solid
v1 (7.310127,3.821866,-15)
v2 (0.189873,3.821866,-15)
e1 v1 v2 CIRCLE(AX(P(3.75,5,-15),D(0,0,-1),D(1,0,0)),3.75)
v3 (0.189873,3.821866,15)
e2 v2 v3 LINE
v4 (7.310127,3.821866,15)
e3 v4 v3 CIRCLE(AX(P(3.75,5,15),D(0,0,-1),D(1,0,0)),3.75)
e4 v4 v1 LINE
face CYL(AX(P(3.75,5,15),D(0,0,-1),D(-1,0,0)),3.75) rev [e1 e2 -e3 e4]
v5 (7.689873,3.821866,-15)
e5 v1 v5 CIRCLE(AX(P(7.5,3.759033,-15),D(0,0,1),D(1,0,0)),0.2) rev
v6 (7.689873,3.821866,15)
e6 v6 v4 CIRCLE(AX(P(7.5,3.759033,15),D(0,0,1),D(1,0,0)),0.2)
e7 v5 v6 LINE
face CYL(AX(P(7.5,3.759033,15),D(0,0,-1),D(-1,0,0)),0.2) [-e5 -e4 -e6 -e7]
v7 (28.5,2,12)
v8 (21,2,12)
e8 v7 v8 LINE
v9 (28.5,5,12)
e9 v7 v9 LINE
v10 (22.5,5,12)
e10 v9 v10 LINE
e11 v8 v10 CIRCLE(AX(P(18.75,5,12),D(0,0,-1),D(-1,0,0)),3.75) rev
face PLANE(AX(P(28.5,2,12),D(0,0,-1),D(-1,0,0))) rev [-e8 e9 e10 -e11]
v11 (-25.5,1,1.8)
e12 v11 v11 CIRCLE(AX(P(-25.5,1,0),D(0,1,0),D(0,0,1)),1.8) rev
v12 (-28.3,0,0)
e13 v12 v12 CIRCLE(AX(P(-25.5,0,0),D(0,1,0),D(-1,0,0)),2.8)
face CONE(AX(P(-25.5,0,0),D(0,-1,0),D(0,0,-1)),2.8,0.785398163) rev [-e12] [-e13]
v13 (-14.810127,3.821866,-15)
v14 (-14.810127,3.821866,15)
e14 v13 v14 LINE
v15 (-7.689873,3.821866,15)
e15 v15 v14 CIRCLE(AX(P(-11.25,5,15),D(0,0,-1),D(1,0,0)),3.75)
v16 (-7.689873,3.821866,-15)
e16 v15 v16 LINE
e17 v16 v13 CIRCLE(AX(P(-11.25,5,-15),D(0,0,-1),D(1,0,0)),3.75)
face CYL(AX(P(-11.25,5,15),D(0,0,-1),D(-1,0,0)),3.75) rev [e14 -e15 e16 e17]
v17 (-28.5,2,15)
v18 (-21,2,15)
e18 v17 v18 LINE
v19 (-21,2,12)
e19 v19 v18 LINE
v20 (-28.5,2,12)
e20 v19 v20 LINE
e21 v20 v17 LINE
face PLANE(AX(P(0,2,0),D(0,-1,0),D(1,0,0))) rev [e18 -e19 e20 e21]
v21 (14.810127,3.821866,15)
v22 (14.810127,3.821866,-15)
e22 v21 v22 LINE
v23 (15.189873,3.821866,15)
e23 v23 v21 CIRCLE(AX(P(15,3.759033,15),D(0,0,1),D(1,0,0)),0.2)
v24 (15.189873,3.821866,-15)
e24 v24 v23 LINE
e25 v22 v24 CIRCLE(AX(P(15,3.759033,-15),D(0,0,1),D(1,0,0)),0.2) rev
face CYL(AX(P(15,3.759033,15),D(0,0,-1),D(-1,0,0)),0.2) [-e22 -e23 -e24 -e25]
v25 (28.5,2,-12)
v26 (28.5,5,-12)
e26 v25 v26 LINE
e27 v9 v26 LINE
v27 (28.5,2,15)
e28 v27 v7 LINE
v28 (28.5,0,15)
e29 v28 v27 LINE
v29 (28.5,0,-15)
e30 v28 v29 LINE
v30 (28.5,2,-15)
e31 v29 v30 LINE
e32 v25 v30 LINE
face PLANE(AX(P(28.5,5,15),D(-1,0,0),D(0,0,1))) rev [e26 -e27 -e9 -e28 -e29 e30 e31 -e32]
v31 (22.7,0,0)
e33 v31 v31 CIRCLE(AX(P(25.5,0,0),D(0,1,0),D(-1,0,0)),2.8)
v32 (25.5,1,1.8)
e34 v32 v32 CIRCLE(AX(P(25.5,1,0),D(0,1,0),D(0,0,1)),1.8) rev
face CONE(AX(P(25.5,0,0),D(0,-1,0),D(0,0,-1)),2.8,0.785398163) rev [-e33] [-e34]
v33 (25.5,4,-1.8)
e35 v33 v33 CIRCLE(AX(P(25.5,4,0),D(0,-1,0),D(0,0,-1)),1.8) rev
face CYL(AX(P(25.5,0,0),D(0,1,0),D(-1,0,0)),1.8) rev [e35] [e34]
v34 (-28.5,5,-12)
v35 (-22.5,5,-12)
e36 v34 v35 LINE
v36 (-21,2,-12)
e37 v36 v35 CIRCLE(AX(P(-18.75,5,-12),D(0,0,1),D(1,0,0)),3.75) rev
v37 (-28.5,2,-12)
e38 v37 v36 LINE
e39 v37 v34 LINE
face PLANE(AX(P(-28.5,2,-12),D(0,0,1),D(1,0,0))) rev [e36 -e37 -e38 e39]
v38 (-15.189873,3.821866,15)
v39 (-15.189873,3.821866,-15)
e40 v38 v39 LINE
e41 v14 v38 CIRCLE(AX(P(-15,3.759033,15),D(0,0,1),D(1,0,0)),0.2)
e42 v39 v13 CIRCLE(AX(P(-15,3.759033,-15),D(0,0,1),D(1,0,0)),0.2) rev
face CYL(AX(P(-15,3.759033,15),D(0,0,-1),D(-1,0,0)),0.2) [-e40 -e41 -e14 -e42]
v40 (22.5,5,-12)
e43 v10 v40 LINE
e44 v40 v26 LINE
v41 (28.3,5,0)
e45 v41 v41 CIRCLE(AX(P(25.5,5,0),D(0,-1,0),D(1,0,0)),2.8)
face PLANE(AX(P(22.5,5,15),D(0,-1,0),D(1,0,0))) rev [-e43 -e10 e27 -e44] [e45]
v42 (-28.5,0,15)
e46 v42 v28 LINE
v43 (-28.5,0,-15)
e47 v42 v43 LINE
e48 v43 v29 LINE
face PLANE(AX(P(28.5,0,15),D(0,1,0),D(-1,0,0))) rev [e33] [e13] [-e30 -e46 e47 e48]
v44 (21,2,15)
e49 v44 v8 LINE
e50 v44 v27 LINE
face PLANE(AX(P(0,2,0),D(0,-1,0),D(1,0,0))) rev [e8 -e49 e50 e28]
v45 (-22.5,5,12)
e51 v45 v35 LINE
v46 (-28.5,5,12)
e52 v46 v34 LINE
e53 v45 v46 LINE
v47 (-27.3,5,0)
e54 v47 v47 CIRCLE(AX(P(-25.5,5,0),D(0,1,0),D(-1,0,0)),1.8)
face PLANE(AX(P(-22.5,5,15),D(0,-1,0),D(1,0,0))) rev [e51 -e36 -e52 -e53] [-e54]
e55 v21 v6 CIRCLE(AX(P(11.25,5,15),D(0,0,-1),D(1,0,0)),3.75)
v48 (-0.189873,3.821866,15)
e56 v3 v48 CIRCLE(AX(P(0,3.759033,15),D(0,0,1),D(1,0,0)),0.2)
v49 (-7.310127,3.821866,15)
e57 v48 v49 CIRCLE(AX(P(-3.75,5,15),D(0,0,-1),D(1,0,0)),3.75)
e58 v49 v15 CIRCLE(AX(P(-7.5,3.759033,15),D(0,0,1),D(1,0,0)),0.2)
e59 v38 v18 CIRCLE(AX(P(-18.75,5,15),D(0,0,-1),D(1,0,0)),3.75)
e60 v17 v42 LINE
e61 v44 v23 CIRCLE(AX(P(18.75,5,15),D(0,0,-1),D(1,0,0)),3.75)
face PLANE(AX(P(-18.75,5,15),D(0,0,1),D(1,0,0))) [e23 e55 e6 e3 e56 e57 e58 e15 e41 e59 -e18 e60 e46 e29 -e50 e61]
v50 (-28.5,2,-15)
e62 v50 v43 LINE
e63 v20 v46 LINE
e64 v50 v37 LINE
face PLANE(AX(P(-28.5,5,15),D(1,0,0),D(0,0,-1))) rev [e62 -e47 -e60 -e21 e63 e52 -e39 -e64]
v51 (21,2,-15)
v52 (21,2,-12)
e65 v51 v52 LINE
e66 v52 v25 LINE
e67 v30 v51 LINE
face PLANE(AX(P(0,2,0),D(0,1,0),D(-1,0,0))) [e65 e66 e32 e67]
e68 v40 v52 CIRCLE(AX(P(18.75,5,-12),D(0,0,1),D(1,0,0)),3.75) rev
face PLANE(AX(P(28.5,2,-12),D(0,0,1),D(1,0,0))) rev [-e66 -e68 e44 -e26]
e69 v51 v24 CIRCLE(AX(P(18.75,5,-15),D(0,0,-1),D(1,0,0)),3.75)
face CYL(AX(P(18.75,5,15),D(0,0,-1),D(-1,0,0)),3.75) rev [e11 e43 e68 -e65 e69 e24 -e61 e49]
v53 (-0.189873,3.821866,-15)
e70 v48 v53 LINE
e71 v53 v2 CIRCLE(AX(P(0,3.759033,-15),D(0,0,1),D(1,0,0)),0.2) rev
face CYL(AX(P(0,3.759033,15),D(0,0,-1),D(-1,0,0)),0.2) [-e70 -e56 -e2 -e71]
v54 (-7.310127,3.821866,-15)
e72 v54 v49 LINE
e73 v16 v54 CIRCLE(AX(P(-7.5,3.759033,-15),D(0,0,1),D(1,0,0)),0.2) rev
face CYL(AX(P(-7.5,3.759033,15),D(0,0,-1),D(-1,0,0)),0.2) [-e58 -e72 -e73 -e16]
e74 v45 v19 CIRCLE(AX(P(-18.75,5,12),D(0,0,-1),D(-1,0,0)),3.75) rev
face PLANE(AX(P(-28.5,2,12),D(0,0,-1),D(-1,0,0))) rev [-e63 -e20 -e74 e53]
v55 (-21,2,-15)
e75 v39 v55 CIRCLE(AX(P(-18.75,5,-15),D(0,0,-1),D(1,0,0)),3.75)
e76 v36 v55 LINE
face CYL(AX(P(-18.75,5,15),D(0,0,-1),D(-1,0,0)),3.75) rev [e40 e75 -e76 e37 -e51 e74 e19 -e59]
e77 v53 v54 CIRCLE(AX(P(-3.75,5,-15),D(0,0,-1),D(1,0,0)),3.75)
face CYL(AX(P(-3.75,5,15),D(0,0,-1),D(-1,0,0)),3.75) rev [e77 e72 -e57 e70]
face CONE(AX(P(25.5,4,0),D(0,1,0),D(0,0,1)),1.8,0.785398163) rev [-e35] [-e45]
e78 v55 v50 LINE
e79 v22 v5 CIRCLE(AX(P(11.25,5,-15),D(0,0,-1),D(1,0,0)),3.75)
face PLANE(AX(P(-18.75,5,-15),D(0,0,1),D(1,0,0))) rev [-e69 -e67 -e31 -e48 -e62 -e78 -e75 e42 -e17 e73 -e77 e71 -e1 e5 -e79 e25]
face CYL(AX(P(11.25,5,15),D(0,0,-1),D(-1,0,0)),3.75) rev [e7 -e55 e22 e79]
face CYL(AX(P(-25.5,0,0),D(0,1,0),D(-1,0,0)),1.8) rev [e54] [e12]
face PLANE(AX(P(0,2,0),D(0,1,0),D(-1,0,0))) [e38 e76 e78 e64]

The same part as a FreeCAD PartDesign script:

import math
import FreeCAD as App
import Part
import Sketcher

V = App.Vector
Q = App.Units.Quantity


def edges_at(feature, points):
    """Names of the edges that pass closest to the given points."""
    edges = feature.Shape.Edges
    near = lambda p: min(range(len(edges)), key=lambda i: edges[i].distToShape(Part.Vertex(*p))[0])
    return sorted({f"Edge{near(p) + 1}" for p in points})


def add_polygon(sketch, points):
    """Adds a closed chain of lines whose ends are joined by coincident constraints."""
    first, n = sketch.GeometryCount, len(points)
    for a, b in zip(points, points[1:] + points[:1]):
        sketch.addGeometry(Part.LineSegment(App.Vector(*a, 0), App.Vector(*b, 0)), False)
    for i in range(n):
        sketch.addConstraint(Sketcher.Constraint("Coincident", first + i, 2, first + (i + 1) % n, 1))

doc = App.newDocument("Part")
body = doc.addObject("PartDesign::Body", "Body")

# Sketch on XY plane
sketch1 = doc.addObject("Sketcher::SketchObject", "Sketch")
body.addObject(sketch1)
sketch1.AttachmentSupport = (doc.XY_Plane, [""])
sketch1.MapMode = "FlatFace"
sketch1.addGeometry([
    Part.LineSegment(V(28.5, 0, 0), V(28.5, 5, 0)),  # 0
    Part.LineSegment(V(28.5, 5, 0), V(22.5, 5, 0)),  # 1
    Part.ArcOfCircle(Part.Circle(V(18.75, 5, 0), V(0, 0, 1), 3.75), math.radians(180), math.radians(360)),  # 2
    Part.ArcOfCircle(Part.Circle(V(11.25, 5, 0), V(0, 0, 1), 3.75), math.radians(180), math.radians(360)),  # 3
    Part.ArcOfCircle(Part.Circle(V(3.75, 5, 0), V(0, 0, 1), 3.75), math.radians(180), math.radians(360)),  # 4
    Part.ArcOfCircle(Part.Circle(V(-3.75, 5, 0), V(0, 0, 1), 3.75), math.radians(180), math.radians(360)),  # 5
    Part.ArcOfCircle(Part.Circle(V(-11.25, 5, 0), V(0, 0, 1), 3.75), math.radians(180), math.radians(360)),  # 6
    Part.ArcOfCircle(Part.Circle(V(-18.75, 5, 0), V(0, 0, 1), 3.75), math.radians(180), math.radians(360)),  # 7
    Part.LineSegment(V(-22.5, 5, 0), V(-28.5, 5, 0)),  # 8
    Part.LineSegment(V(-28.5, 5, 0), V(-28.5, 0, 0)),  # 9
    Part.LineSegment(V(-28.5, 0, 0), V(28.5, 0, 0)),  # 10
], False)
sketch1.addConstraint([
    Sketcher.Constraint("Coincident", 0, 2, 1, 1),
    Sketcher.Constraint("Coincident", 1, 2, 2, 2),
    Sketcher.Constraint("Tangent", 2, 1, 3, 2),
    Sketcher.Constraint("Tangent", 3, 1, 4, 2),
    Sketcher.Constraint("Tangent", 4, 1, 5, 2),
    Sketcher.Constraint("Tangent", 5, 1, 6, 2),
    Sketcher.Constraint("Tangent", 6, 1, 7, 2),
    Sketcher.Constraint("Coincident", 7, 1, 8, 1),
    Sketcher.Constraint("Coincident", 8, 2, 9, 1),
    Sketcher.Constraint("Coincident", 9, 2, 10, 1),
    Sketcher.Constraint("Coincident", 10, 2, 0, 1),
    Sketcher.Constraint("Vertical", 0),
    Sketcher.Constraint("Horizontal", 1),
    Sketcher.Constraint("Horizontal", 8),
    Sketcher.Constraint("Vertical", 9),
    Sketcher.Constraint("Horizontal", 10),
    Sketcher.Constraint("Equal", 2, 3),
    Sketcher.Constraint("Equal", 3, 4),
    Sketcher.Constraint("Equal", 4, 5),
    Sketcher.Constraint("Equal", 5, 6),
    Sketcher.Constraint("Equal", 6, 7),
    Sketcher.Constraint("Symmetric", 9, 2, 10, 2, -1, 1),
    Sketcher.Constraint("Symmetric", 4, 3, 5, 3, -2),
    Sketcher.Constraint("Horizontal", 2, 3, 3, 3),
    Sketcher.Constraint("Horizontal", 3, 3, 4, 3),
    Sketcher.Constraint("Horizontal", 5, 3, 6, 3),
    Sketcher.Constraint("Horizontal", 6, 3, 7, 3),
    Sketcher.Constraint("Horizontal", 7, 3, 0, 2),
    Sketcher.Constraint("Horizontal", 6, 1, 7, 1),
    Sketcher.Constraint("DistanceX", 1, 2, 1, 1, Q("6 mm")),
    Sketcher.Constraint("DistanceX", 10, 1, 10, 2, Q("57 mm")),
    Sketcher.Constraint("DistanceY", 0, 1, 0, 2, Q("5 mm")),
])
pad1 = doc.addObject("PartDesign::Pad", "Pad")
body.addObject(pad1)
pad1.Profile = sketch1
pad1.Length = 30
pad1.Midplane = True

# Sketch on XZ plane
sketch2 = doc.addObject("Sketcher::SketchObject", "Sketch001")
body.addObject(sketch2)
sketch2.AttachmentSupport = (doc.XZ_Plane, [""])
sketch2.MapMode = "FlatFace"
sketch2.AttachmentOffset = App.Placement(V(0, 0, -5), App.Rotation())
sketch2.addGeometry([
    Part.Circle(V(-25.5, 0, 0), V(0, 0, 1), 1.8),
    Part.Circle(V(25.5, 0, 0), V(0, 0, 1), 1.8),
], False)
sketch2.addConstraint([
    Sketcher.Constraint("Equal", 0, 1),
    Sketcher.Constraint("Symmetric", 0, 3, 1, 3, -1, 1),
    Sketcher.Constraint("PointOnObject", 0, 3, -1),
    Sketcher.Constraint("Diameter", 0, Q("3.6 mm")),
    Sketcher.Constraint("DistanceX", 0, 3, 1, 3, Q("51 mm")),
])
pocket1 = doc.addObject("PartDesign::Pocket", "Pocket")
body.addObject(pocket1)
pocket1.Profile = sketch2
pocket1.Type = "ThroughAll"
pocket1.Reversed = True

# Sketch on XZ plane
sketch3 = doc.addObject("Sketcher::SketchObject", "Sketch002")
body.addObject(sketch3)
sketch3.AttachmentSupport = (doc.XZ_Plane, [""])
sketch3.MapMode = "FlatFace"
sketch3.AttachmentOffset = App.Placement(V(0, 0, -5), App.Rotation())
add_polygon(sketch3, [(-28.5, -15), (-28.5, -12), (-18.75, -12), (-18.75, -15)])  # lines 0-3
add_polygon(sketch3, [(-28.5, 12), (-28.5, 15), (-18.75, 15), (-18.75, 12)])  # lines 4-7
add_polygon(sketch3, [(18.75, 12), (18.75, 15), (28.5, 15), (28.5, 12)])  # lines 8-11
add_polygon(sketch3, [(18.75, -15), (18.75, -12), (28.5, -12), (28.5, -15)])  # lines 12-15
sketch3.addConstraint([
    Sketcher.Constraint("Vertical", 0),
    Sketcher.Constraint("Horizontal", 1),
    Sketcher.Constraint("Vertical", 2),
    Sketcher.Constraint("Horizontal", 3),
    Sketcher.Constraint("Vertical", 4),
    Sketcher.Constraint("Horizontal", 5),
    Sketcher.Constraint("Vertical", 6),
    Sketcher.Constraint("Horizontal", 7),
    Sketcher.Constraint("Vertical", 8),
    Sketcher.Constraint("Horizontal", 9),
    Sketcher.Constraint("Vertical", 10),
    Sketcher.Constraint("Horizontal", 11),
    Sketcher.Constraint("Vertical", 12),
    Sketcher.Constraint("Horizontal", 13),
    Sketcher.Constraint("Vertical", 14),
    Sketcher.Constraint("Horizontal", 15),
    Sketcher.Constraint("Symmetric", 2, 2, 8, 2, -1, 1),
    Sketcher.Constraint("Symmetric", 0, 2, 10, 2, -1, 1),
    Sketcher.Constraint("Symmetric", 6, 2, 12, 2, -1, 1),
    Sketcher.Constraint("Symmetric", 4, 2, 14, 2, -1, 1),
    Sketcher.Constraint("Symmetric", 5, 2, 8, 2, -2),
    Sketcher.Constraint("Symmetric", 7, 2, 10, 2, -2),
    Sketcher.Constraint("DistanceY", 0, 1, 0, 2, Q("3 mm")),
    Sketcher.Constraint("DistanceY", 0, 2, -1, 1, Q("12 mm")),
    Sketcher.Constraint("DistanceX", 1, 1, 1, 2, Q("9.75 mm")),
    Sketcher.Constraint("DistanceX", 0, 2, -1, 1, Q("28.5 mm")),
])
pocket2 = doc.addObject("PartDesign::Pocket", "Pocket001")
body.addObject(pocket2)
pocket2.Profile = sketch3
pocket2.Length = 3
pocket2.Reversed = True
doc.recompute()

fillet = doc.addObject("PartDesign::Fillet", "Fillet")
body.addObject(fillet)
fillet.Base = (pocket2, edges_at(pocket2, [
    (-15, 5, 0),
    (-7.5, 5, 0),
    (0, 5, 0),
    (7.5, 5, 0),
    (15, 5, 0),
]))
fillet.Radius = 0.2
doc.recompute()

chamfer = doc.addObject("PartDesign::Chamfer", "Chamfer")
body.addObject(chamfer)
chamfer.Base = (fillet, edges_at(fillet, [(-23.7, 0, 0), (23.7, 0, 0), (23.7, 5, 0)]))
chamfer.Size = 1

doc.recompute()
